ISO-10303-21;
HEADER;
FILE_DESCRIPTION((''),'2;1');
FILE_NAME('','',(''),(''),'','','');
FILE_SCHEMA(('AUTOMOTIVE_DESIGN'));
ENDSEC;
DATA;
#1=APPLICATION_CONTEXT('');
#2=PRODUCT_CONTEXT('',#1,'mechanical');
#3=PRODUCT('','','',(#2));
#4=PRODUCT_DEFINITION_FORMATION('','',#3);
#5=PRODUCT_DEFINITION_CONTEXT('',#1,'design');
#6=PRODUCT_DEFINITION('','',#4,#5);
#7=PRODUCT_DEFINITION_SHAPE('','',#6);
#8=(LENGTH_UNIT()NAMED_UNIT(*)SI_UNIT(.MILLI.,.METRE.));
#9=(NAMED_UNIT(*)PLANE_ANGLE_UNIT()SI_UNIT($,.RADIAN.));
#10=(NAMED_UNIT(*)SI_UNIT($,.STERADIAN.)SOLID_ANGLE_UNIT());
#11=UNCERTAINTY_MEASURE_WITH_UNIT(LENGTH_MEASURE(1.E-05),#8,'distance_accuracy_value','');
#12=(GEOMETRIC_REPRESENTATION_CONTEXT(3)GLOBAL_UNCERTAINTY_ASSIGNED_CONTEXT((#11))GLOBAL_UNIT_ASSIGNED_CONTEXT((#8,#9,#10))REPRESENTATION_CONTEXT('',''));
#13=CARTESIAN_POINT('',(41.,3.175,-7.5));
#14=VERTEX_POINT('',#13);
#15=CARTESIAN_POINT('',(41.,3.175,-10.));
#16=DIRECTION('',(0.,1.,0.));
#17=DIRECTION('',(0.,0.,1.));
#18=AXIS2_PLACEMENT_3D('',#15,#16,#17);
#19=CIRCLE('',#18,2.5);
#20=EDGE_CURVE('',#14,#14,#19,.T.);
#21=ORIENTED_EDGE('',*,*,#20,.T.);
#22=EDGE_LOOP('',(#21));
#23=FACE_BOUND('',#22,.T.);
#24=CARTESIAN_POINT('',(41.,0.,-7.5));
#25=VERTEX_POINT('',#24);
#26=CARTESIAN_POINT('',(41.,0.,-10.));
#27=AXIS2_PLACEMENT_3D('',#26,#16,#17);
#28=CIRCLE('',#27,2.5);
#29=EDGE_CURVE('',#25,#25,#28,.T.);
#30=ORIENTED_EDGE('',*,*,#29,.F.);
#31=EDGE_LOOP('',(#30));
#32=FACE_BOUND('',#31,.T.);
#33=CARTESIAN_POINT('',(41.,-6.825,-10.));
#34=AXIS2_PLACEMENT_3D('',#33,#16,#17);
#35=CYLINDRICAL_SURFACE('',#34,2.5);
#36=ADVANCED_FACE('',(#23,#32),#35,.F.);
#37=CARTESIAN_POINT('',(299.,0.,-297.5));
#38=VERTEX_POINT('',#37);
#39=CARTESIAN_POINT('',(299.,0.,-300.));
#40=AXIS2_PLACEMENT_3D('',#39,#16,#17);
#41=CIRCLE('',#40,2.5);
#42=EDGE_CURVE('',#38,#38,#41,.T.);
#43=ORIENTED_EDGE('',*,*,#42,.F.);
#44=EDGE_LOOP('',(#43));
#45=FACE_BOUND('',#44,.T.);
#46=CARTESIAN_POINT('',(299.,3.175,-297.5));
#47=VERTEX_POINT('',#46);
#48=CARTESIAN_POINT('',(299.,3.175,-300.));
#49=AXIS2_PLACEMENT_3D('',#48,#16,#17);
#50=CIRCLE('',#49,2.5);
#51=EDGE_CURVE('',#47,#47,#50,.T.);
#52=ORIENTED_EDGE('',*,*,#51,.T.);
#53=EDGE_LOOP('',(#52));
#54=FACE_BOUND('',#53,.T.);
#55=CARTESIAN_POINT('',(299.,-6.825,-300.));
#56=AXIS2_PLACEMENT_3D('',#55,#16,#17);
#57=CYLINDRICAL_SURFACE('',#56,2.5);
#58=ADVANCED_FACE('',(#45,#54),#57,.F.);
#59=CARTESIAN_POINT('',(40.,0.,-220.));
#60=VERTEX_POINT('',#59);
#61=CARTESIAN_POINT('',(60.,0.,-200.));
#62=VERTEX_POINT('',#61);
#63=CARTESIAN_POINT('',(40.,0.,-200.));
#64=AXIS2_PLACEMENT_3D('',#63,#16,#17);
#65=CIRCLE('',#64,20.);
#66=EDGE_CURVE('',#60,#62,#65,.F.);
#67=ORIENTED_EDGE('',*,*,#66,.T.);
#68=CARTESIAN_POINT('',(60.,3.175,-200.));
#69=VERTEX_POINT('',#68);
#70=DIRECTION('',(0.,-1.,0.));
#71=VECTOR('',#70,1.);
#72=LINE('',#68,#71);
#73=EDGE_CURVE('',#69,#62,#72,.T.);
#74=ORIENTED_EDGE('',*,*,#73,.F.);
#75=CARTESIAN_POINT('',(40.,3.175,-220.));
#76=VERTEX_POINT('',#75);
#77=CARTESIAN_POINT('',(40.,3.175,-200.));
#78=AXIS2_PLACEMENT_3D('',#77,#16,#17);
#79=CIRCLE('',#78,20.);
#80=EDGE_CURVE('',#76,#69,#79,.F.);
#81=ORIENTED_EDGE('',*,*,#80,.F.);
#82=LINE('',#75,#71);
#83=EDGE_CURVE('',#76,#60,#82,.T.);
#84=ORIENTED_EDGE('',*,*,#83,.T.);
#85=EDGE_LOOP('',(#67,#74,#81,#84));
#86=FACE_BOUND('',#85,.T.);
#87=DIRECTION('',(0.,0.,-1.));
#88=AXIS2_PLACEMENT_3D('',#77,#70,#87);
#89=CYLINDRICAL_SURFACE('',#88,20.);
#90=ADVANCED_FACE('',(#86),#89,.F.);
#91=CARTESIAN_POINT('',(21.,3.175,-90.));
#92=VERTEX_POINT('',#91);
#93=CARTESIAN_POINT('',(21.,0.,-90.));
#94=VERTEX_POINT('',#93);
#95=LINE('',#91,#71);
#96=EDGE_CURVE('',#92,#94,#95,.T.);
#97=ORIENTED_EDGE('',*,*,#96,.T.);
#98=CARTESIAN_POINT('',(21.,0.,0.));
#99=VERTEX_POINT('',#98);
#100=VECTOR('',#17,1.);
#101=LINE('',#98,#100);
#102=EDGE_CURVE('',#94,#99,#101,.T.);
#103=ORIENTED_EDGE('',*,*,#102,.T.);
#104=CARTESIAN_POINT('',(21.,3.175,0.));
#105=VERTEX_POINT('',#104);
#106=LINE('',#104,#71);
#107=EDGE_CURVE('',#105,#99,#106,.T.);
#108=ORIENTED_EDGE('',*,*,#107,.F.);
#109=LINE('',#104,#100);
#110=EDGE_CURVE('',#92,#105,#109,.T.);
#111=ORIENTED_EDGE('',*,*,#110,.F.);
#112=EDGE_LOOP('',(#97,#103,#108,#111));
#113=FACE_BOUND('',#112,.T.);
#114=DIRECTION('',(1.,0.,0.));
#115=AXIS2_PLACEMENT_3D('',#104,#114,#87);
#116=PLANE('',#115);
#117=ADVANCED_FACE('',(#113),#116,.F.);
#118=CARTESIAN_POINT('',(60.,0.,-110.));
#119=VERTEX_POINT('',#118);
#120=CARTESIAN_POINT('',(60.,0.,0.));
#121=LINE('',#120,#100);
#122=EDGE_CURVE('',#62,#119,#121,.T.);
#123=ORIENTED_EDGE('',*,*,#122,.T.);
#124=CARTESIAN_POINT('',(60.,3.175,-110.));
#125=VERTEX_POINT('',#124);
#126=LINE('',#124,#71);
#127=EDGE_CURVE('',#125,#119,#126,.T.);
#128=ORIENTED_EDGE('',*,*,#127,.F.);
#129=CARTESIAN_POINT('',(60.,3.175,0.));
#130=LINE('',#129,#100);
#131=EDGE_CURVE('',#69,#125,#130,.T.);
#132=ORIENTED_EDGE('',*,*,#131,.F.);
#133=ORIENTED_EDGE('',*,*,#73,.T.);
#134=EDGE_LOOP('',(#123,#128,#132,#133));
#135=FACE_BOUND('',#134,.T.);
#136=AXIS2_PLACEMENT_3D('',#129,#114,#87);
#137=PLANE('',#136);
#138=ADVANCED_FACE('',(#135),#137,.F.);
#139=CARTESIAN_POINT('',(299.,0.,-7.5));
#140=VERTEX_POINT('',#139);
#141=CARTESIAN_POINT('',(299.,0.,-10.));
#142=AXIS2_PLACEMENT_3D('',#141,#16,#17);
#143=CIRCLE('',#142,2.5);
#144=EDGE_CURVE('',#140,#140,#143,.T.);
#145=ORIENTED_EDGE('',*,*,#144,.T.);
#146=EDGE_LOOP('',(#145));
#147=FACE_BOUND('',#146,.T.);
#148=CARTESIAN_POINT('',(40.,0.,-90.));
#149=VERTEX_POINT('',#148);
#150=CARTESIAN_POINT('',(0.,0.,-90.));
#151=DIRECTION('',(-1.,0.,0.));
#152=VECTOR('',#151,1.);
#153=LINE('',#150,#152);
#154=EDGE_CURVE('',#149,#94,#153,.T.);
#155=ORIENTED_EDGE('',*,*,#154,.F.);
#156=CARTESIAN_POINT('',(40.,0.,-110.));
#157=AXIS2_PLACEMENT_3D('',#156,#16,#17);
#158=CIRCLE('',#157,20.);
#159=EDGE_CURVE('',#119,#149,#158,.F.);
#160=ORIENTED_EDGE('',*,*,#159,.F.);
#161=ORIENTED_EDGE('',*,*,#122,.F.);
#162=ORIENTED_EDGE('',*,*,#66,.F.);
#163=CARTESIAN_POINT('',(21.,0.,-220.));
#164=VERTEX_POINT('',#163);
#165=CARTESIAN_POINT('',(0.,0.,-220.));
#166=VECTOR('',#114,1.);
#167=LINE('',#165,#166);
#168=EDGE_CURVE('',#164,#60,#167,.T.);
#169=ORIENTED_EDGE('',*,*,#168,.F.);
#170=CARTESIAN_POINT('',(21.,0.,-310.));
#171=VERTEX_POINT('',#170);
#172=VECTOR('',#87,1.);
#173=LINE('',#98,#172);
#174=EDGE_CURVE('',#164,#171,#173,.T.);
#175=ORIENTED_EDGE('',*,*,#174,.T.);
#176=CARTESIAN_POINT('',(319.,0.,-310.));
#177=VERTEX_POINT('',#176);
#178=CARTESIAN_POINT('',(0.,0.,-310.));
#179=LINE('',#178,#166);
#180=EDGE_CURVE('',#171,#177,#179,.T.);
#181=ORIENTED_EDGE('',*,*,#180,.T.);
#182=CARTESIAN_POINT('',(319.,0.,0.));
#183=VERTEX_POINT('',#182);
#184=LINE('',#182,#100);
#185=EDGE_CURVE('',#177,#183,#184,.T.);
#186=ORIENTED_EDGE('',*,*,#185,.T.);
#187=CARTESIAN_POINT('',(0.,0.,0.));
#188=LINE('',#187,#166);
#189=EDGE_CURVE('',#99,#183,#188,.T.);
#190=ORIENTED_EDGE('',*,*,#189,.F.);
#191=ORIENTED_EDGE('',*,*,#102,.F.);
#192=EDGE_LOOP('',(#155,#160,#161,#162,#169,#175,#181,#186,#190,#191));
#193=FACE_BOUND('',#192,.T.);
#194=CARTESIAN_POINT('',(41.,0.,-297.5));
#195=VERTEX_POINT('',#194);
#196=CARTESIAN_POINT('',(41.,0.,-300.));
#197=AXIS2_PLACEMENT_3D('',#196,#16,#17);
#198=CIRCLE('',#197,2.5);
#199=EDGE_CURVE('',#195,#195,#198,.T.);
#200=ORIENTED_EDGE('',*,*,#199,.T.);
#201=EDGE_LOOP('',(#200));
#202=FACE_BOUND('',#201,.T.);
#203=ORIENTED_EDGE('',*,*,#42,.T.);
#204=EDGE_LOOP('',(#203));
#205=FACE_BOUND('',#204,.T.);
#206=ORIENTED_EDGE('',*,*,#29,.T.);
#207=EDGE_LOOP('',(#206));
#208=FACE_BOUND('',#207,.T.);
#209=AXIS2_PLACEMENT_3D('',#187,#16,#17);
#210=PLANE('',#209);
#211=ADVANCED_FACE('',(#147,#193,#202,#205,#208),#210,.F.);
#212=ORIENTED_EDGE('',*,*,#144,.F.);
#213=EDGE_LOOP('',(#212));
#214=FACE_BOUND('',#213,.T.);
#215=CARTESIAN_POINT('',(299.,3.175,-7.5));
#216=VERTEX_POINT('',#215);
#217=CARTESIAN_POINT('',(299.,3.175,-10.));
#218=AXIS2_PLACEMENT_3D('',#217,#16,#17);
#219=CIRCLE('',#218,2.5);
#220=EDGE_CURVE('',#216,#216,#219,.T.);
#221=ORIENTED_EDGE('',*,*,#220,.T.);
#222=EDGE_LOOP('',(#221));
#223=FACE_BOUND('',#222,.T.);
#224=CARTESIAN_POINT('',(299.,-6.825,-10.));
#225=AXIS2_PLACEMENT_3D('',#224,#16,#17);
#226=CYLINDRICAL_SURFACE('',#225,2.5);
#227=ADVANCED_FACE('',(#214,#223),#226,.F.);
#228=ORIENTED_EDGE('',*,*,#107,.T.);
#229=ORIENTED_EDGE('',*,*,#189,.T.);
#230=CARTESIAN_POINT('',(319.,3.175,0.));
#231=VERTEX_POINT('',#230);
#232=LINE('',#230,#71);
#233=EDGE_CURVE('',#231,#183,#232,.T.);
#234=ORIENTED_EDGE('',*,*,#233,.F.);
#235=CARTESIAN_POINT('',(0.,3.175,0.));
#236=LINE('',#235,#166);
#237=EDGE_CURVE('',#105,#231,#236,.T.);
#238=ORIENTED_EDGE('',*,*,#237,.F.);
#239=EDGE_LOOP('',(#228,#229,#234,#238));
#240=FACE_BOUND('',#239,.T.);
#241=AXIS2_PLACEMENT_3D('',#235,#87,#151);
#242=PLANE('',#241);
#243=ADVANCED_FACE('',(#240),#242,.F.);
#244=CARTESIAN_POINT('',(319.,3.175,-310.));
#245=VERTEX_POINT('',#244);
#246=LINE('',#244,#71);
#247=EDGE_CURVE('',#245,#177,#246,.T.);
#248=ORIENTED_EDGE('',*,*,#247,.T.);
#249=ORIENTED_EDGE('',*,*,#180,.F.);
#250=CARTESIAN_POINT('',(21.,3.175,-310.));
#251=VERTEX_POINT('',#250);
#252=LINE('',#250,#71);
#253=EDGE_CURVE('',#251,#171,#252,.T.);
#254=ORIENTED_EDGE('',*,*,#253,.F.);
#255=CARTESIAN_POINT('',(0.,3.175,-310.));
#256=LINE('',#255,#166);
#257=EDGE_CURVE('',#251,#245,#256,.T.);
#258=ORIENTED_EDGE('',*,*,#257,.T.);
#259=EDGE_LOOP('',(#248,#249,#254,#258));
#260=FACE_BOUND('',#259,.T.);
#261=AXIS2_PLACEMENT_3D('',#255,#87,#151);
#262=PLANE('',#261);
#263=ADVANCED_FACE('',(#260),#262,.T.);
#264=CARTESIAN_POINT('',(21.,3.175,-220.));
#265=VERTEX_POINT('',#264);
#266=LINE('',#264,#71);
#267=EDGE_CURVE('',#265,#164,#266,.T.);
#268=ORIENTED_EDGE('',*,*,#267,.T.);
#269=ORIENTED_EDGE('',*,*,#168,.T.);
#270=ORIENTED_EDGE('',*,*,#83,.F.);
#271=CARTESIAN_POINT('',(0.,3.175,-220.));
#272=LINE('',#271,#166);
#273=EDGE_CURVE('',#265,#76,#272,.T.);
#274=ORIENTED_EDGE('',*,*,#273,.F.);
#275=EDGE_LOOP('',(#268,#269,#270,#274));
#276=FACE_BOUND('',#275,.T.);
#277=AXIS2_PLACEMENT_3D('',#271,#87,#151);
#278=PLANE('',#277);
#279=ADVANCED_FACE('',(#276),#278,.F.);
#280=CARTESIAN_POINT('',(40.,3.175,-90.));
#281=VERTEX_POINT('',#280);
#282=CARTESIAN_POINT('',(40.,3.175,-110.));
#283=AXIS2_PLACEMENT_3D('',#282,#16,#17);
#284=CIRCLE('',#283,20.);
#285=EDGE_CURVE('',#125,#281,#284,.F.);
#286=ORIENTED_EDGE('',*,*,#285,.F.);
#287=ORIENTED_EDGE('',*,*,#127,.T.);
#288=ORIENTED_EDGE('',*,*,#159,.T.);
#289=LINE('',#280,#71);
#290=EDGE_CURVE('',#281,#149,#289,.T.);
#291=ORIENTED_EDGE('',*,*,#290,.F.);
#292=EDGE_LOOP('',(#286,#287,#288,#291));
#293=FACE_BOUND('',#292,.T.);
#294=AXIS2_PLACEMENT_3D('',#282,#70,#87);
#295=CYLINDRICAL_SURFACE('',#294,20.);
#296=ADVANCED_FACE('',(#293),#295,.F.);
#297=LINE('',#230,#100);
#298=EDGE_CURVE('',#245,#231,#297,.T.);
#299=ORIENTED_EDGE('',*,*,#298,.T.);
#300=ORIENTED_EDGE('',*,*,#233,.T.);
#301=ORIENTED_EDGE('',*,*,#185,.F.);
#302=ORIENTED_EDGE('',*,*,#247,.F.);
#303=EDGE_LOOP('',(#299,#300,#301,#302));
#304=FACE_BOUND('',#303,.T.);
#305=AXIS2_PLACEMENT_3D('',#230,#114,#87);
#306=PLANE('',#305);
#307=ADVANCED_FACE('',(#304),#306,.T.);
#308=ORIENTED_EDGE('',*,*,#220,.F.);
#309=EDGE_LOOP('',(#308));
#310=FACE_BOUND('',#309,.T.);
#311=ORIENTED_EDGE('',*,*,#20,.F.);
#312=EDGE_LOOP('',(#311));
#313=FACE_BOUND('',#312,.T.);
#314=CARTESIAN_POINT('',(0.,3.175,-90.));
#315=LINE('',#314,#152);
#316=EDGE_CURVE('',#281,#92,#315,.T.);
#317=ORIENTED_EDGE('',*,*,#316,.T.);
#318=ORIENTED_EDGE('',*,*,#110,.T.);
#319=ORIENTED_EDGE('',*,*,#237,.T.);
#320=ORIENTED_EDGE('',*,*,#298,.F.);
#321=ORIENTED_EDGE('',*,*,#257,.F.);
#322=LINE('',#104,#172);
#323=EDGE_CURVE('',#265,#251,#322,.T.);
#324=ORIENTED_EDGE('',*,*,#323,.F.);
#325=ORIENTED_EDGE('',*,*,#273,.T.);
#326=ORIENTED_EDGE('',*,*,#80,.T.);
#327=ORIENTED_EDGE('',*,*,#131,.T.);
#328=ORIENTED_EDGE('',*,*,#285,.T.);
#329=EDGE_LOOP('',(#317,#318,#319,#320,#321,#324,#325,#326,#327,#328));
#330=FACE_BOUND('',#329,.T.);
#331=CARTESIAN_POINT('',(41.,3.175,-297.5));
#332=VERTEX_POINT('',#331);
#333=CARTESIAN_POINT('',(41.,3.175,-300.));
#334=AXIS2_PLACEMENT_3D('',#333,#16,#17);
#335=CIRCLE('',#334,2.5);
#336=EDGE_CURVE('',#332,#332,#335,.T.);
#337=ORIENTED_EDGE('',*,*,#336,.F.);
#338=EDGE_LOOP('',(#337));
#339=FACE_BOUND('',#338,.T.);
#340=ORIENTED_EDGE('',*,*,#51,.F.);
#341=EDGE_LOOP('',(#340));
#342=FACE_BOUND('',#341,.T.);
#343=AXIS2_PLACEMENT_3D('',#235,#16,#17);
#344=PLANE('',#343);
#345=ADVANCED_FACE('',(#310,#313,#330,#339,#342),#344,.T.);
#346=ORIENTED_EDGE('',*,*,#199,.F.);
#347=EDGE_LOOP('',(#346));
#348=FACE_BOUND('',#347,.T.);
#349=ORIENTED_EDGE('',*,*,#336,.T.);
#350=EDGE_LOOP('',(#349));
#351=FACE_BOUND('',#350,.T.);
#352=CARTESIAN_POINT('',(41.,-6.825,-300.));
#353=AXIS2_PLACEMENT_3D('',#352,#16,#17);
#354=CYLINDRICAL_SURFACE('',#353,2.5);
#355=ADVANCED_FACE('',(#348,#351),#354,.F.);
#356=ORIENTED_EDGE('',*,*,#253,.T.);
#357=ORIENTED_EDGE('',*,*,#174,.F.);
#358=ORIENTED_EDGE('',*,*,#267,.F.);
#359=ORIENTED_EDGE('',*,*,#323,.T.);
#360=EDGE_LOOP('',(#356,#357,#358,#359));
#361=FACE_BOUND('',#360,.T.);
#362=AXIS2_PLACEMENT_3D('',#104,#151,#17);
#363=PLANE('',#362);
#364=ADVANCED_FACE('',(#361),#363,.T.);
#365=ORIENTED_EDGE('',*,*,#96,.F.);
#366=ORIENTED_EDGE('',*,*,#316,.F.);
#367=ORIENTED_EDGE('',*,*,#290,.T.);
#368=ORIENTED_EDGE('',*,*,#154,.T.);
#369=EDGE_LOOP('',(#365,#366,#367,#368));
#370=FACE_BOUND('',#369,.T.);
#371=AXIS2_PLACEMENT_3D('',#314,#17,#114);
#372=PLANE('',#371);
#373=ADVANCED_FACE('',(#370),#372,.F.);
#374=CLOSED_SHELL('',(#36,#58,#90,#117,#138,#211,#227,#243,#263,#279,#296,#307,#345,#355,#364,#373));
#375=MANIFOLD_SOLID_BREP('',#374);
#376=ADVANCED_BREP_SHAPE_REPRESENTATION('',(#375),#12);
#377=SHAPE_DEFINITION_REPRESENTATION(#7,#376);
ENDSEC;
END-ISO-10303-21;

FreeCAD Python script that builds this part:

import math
import FreeCAD as App
import Part
import Sketcher
from FreeCAD import Vector
Q = App.Units.Quantity

doc = App.newDocument("Part")
body = doc.addObject("PartDesign::Body", "Body")

# Sketch on XZ plane
sketch1 = body.newObject("Sketcher::SketchObject", "Sketch")
sketch1.AttachmentSupport = (doc.getObject("XZ_Plane"), [""])
sketch1.MapMode = "FlatFace"
sketch1.addGeometry(Part.LineSegment(Vector(21, -310, 0), Vector(21, -220, 0)), False)
sketch1.addGeometry(Part.LineSegment(Vector(21, -220, 0), Vector(40, -220, 0)), False)
sketch1.addGeometry(Part.ArcOfCircle(Part.Circle(Vector(40, -200, 0), Vector(0, 0, 1), 20), math.radians(-90), math.radians(0)), False)
sketch1.addGeometry(Part.LineSegment(Vector(60, -200, 0), Vector(60, -110, 0)), False)
sketch1.addGeometry(Part.ArcOfCircle(Part.Circle(Vector(40, -110, 0), Vector(0, 0, 1), 20), math.radians(0), math.radians(90)), False)
sketch1.addGeometry(Part.LineSegment(Vector(40, -90, 0), Vector(21, -90, 0)), False)
sketch1.addGeometry(Part.LineSegment(Vector(21, -90, 0), Vector(21, 0, 0)), False)
sketch1.addGeometry(Part.LineSegment(Vector(21, 0, 0), Vector(319, 0, 0)), False)
sketch1.addGeometry(Part.LineSegment(Vector(319, 0, 0), Vector(319, -310, 0)), False)
sketch1.addGeometry(Part.LineSegment(Vector(319, -310, 0), Vector(21, -310, 0)), False)
sketch1.addConstraint(Sketcher.Constraint("Coincident", 0, 2, 1, 1))
sketch1.addConstraint(Sketcher.Constraint("Tangent", 1, 2, 2, 1))
sketch1.addConstraint(Sketcher.Constraint("Tangent", 2, 2, 3, 1))
sketch1.addConstraint(Sketcher.Constraint("Tangent", 3, 2, 4, 1))
sketch1.addConstraint(Sketcher.Constraint("Tangent", 4, 2, 5, 1))
sketch1.addConstraint(Sketcher.Constraint("Coincident", 5, 2, 6, 1))
sketch1.addConstraint(Sketcher.Constraint("Coincident", 6, 2, 7, 1))
sketch1.addConstraint(Sketcher.Constraint("Coincident", 7, 2, 8, 1))
sketch1.addConstraint(Sketcher.Constraint("Coincident", 8, 2, 9, 1))
sketch1.addConstraint(Sketcher.Constraint("Coincident", 9, 2, 0, 1))
sketch1.addConstraint(Sketcher.Constraint("Vertical", 0))
sketch1.addConstraint(Sketcher.Constraint("Horizontal", 1))
sketch1.addConstraint(Sketcher.Constraint("Vertical", 3))
sketch1.addConstraint(Sketcher.Constraint("Horizontal", 5))
sketch1.addConstraint(Sketcher.Constraint("Vertical", 6))
sketch1.addConstraint(Sketcher.Constraint("Horizontal", 7))
sketch1.addConstraint(Sketcher.Constraint("Vertical", 8))
sketch1.addConstraint(Sketcher.Constraint("Horizontal", 9))
sketch1.addConstraint(Sketcher.Constraint("Equal", 2, 4))
sketch1.addConstraint(Sketcher.Constraint("PointOnObject", 6, 2, -1))
sketch1.addConstraint(Sketcher.Constraint("Vertical", 0, 2, 5, 2))
sketch1.addConstraint(Sketcher.Constraint("Equal", 0, 3))
sketch1.addConstraint(Sketcher.Constraint("Equal", 3, 6))
sketch1.addConstraint(Sketcher.Constraint("Radius", 2, Q("20 mm")))
sketch1.addConstraint(Sketcher.Constraint("DistanceX", 1, 1, 1, 2, Q("19 mm")))
sketch1.addConstraint(Sketcher.Constraint("DistanceX", 7, 1, 7, 2, Q("298 mm")))
sketch1.addConstraint(Sketcher.Constraint("DistanceY", 0, 1, 0, 2, Q("90 mm")))
sketch1.addConstraint(Sketcher.Constraint("DistanceX", -1, 1, 2, 3, Q("40 mm")))
pad1 = body.newObject("PartDesign::Pad", "Pad")
pad1.Profile = sketch1
pad1.Length = 3.175
pad1.Reversed = True

# Sketch on XZ plane
sketch2 = body.newObject("Sketcher::SketchObject", "Sketch001")
sketch2.AttachmentSupport = (doc.getObject("XZ_Plane"), [""])
sketch2.MapMode = "FlatFace"
sketch2.AttachmentOffset = App.Placement(Vector(0, 0, -3.175), App.Rotation())
sketch2.addGeometry(Part.Circle(Vector(41, -300, 0), Vector(0, 0, 1), 2.5), False)
sketch2.addGeometry(Part.Circle(Vector(10, -269, 0), Vector(0, 0, 1), 2.5), False)
sketch2.addGeometry(Part.Circle(Vector(299, -300, 0), Vector(0, 0, 1), 2.5), False)
sketch2.addGeometry(Part.Circle(Vector(330, -269, 0), Vector(0, 0, 1), 2.5), False)
sketch2.addGeometry(Part.Circle(Vector(330, -41, 0), Vector(0, 0, 1), 2.5), False)
sketch2.addGeometry(Part.Circle(Vector(299, -10, 0), Vector(0, 0, 1), 2.5), False)
sketch2.addGeometry(Part.Circle(Vector(41, -10, 0), Vector(0, 0, 1), 2.5), False)
sketch2.addGeometry(Part.Circle(Vector(10, -41, 0), Vector(0, 0, 1), 2.5), False)
sketch2.addConstraint(Sketcher.Constraint("Equal", 0, 1))
sketch2.addConstraint(Sketcher.Constraint("Equal", 1, 2))
sketch2.addConstraint(Sketcher.Constraint("Equal", 2, 3))
sketch2.addConstraint(Sketcher.Constraint("Equal", 3, 4))
sketch2.addConstraint(Sketcher.Constraint("Equal", 4, 5))
sketch2.addConstraint(Sketcher.Constraint("Equal", 5, 6))
sketch2.addConstraint(Sketcher.Constraint("Equal", 6, 7))
sketch2.addConstraint(Sketcher.Constraint("Horizontal", 0, 3, 2, 3))
sketch2.addConstraint(Sketcher.Constraint("Horizontal", 1, 3, 3, 3))
sketch2.addConstraint(Sketcher.Constraint("Horizontal", 5, 3, 6, 3))
sketch2.addConstraint(Sketcher.Constraint("Horizontal", 4, 3, 7, 3))
sketch2.addConstraint(Sketcher.Constraint("Vertical", 3, 3, 4, 3))
sketch2.addConstraint(Sketcher.Constraint("Vertical", 2, 3, 5, 3))
sketch2.addConstraint(Sketcher.Constraint("Vertical", 0, 3, 6, 3))
sketch2.addConstraint(Sketcher.Constraint("Vertical", 1, 3, 7, 3))
sketch2.addConstraint(Sketcher.Constraint("Diameter", 0, Q("5 mm")))
sketch2.addConstraint(Sketcher.Constraint("DistanceX", -1, 1, 0, 3, Q("41 mm")))
sketch2.addConstraint(Sketcher.Constraint("DistanceY", 0, 3, -1, 1, Q("300 mm")))
sketch2.addConstraint(Sketcher.Constraint("DistanceX", -1, 1, 1, 3, Q("10 mm")))
sketch2.addConstraint(Sketcher.Constraint("DistanceY", 1, 3, -1, 1, Q("269 mm")))
sketch2.addConstraint(Sketcher.Constraint("DistanceX", -1, 1, 2, 3, Q("299 mm")))
sketch2.addConstraint(Sketcher.Constraint("DistanceX", -1, 1, 3, 3, Q("330 mm")))
sketch2.addConstraint(Sketcher.Constraint("DistanceY", 4, 3, -1, 1, Q("41 mm")))
sketch2.addConstraint(Sketcher.Constraint("DistanceY", 5, 3, -1, 1, Q("10 mm")))
pocket1 = body.newObject("PartDesign::Pocket", "Pocket")
pocket1.Profile = sketch2
pocket1.Length = 10
pocket1.Reversed = True

doc.recompute()
